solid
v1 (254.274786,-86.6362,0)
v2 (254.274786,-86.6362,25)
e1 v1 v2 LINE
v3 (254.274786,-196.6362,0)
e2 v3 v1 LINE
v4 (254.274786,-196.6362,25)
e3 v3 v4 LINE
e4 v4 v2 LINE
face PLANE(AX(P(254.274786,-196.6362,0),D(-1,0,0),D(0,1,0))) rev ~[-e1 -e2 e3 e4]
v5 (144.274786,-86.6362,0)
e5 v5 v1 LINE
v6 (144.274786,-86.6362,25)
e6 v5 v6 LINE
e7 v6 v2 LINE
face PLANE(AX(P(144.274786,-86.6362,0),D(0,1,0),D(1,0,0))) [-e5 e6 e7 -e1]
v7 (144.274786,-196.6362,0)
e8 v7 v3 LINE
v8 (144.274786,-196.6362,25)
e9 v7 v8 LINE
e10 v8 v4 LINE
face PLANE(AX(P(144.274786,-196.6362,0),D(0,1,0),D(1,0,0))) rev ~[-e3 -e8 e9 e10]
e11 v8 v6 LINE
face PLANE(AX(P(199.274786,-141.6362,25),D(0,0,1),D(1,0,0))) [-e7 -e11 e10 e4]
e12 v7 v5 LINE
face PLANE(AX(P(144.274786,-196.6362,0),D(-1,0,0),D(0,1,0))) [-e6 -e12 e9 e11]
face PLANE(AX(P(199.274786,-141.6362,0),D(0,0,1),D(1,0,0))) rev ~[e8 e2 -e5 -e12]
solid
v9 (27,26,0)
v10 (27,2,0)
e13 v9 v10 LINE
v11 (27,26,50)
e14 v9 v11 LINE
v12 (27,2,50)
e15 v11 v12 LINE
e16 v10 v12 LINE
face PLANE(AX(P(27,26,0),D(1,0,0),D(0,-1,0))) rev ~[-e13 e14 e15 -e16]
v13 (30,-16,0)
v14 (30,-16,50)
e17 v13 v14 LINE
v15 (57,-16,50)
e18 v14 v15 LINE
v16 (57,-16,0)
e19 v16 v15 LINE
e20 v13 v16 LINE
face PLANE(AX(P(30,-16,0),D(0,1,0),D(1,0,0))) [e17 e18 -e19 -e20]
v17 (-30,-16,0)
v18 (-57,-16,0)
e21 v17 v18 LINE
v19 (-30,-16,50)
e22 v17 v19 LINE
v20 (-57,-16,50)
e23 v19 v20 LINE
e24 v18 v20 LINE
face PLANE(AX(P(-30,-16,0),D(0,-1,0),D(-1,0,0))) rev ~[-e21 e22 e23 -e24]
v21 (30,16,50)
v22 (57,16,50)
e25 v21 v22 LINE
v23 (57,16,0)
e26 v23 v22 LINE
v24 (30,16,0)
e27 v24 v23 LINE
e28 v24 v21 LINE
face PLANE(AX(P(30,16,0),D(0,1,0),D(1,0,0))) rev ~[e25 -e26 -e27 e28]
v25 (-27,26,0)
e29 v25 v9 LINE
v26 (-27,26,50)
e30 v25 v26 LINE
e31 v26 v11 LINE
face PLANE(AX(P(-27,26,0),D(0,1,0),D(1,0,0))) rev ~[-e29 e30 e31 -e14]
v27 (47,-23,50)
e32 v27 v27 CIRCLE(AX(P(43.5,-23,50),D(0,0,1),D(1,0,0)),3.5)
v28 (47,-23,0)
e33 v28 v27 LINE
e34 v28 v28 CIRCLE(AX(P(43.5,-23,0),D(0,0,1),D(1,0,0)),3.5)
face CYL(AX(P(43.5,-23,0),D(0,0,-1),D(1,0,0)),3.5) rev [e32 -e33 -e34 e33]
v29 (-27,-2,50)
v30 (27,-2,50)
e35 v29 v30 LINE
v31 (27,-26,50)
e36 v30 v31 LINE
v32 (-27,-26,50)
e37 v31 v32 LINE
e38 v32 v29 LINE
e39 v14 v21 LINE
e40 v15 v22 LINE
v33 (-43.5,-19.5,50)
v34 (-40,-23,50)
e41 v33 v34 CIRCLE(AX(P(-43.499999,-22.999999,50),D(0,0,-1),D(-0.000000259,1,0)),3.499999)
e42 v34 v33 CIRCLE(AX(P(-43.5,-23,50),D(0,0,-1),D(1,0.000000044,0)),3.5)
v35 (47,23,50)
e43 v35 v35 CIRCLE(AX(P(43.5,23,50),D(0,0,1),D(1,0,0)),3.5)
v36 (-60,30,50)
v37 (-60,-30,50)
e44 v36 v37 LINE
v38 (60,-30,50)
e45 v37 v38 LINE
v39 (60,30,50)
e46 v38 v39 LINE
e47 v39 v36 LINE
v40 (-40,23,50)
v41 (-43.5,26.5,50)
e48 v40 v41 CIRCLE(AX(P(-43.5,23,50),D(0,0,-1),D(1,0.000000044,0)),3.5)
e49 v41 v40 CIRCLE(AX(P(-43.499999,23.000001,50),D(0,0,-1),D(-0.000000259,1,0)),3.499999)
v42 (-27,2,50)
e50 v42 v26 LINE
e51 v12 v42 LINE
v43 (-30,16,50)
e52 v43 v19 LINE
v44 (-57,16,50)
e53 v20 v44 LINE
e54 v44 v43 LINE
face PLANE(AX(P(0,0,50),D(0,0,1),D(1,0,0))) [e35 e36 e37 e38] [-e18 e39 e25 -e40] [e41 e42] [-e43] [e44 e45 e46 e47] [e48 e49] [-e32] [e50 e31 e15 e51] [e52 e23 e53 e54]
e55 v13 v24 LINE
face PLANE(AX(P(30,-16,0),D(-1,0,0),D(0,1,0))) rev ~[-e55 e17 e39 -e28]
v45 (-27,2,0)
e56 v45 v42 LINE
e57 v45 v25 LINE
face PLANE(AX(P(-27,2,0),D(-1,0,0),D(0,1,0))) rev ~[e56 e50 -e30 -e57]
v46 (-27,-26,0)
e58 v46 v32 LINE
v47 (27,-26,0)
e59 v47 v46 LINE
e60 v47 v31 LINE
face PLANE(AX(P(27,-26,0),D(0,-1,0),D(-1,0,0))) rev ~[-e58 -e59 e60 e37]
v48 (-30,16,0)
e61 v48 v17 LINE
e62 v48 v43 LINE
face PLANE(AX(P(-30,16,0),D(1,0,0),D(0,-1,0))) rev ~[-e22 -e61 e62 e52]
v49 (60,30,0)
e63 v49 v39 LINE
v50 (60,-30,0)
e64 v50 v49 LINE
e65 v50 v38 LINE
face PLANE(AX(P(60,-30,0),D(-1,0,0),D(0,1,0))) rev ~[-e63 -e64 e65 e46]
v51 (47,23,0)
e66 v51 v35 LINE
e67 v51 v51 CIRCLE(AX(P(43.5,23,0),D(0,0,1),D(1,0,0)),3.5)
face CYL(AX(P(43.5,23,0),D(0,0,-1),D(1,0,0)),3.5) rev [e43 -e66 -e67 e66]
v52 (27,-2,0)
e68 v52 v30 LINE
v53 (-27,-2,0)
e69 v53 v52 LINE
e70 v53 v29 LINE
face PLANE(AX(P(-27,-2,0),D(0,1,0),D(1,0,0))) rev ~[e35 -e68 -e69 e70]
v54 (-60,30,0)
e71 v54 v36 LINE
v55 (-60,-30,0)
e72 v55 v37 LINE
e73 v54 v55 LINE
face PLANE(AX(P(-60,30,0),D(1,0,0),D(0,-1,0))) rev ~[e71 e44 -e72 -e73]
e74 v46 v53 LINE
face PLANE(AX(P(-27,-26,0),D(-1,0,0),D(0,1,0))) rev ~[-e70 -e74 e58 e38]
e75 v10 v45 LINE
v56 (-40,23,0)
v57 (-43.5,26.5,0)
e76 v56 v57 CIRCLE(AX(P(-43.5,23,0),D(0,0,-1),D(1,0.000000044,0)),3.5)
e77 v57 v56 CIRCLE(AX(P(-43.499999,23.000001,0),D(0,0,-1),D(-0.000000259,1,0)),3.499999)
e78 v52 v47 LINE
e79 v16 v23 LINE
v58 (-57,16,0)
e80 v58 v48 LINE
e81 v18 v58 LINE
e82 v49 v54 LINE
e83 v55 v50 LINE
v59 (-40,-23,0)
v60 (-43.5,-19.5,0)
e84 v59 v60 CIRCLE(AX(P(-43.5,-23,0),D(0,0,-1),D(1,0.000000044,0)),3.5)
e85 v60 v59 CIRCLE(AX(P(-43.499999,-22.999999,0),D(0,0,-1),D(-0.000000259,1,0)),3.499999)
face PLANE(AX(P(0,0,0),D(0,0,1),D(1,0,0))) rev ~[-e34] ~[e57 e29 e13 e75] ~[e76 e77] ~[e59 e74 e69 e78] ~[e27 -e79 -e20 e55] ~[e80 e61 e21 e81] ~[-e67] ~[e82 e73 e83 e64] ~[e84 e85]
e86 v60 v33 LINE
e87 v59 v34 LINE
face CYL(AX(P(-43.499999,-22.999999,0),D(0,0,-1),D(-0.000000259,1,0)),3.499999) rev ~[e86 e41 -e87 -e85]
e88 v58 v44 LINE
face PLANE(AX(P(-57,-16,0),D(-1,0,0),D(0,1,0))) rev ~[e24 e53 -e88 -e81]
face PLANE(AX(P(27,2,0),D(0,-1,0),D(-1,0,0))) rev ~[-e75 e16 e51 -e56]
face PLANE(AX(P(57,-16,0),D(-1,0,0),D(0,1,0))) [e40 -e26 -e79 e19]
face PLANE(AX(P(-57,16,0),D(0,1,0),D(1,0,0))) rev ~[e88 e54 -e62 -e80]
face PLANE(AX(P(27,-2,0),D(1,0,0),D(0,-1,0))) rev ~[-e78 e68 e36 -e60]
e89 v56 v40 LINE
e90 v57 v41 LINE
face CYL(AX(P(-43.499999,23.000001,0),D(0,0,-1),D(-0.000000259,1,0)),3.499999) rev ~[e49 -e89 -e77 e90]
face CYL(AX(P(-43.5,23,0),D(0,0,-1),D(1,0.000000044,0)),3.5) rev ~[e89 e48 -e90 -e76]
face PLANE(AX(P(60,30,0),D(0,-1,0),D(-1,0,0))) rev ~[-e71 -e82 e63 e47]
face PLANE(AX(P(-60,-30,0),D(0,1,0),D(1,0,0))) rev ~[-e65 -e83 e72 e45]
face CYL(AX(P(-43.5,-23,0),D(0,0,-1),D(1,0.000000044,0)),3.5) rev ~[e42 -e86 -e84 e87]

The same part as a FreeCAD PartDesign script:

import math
import FreeCAD as App
import Part
import Sketcher

V = App.Vector

doc = App.newDocument("Part")
body = doc.addObject("PartDesign::Body", "Body")

sketch1 = body.newObject("Sketcher::SketchObject", "Sketch")
sketch1.AttachmentSupport = (doc.getObject("XY_Plane"), [""])
sketch1.MapMode = "FlatFace"
sketch1.addGeometry(Part.LineSegment(V(60, -30, 0), V(60, 30, 0)), False)
sketch1.addGeometry(Part.LineSegment(V(60, 30, 0), V(-60, 30, 0)), False)
sketch1.addGeometry(Part.LineSegment(V(-60, 30, 0), V(-60, -30, 0)), False)
sketch1.addGeometry(Part.LineSegment(V(-60, -30, 0), V(60, -30, 0)), False)
sketch1.addGeometry(Part.ArcOfCircle(Part.Circle(V(-43.5, -23, 0), V(0, 0, 1), 3.5), math.radians(90), math.radians(360)), False)
sketch1.addGeometry(Part.ArcOfCircle(Part.Circle(V(-43.5, -23, 0), V(0, 0, 1), 3.5), math.radians(0), math.radians(90)), False)
sketch1.addGeometry(Part.LineSegment(V(27, -2, 0), V(27, -26, 0)), False)
sketch1.addGeometry(Part.LineSegment(V(27, -26, 0), V(-27, -26, 0)), False)
sketch1.addGeometry(Part.LineSegment(V(-27, -26, 0), V(-27, -2, 0)), False)
sketch1.addGeometry(Part.LineSegment(V(-27, -2, 0), V(27, -2, 0)), False)
sketch1.addGeometry(Part.Circle(V(43.5, -23, 0), V(0, 0, 1), 3.5), False)
sketch1.addGeometry(Part.LineSegment(V(-30, 16, 0), V(-30, -16, 0)), False)
sketch1.addGeometry(Part.LineSegment(V(-30, -16, 0), V(-57, -16, 0)), False)
sketch1.addGeometry(Part.LineSegment(V(-57, -16, 0), V(-57, 16, 0)), False)
sketch1.addGeometry(Part.LineSegment(V(-57, 16, 0), V(-30, 16, 0)), False)
sketch1.addGeometry(Part.ArcOfCircle(Part.Circle(V(-43.5, 23, 0), V(0, 0, 1), 3.5), math.radians(0), math.radians(90)), False)
sketch1.addGeometry(Part.ArcOfCircle(Part.Circle(V(-43.5, 23, 0), V(0, 0, 1), 3.5), math.radians(90), math.radians(360)), False)
sketch1.addGeometry(Part.LineSegment(V(57, -16, 0), V(30, -16, 0)), False)
sketch1.addGeometry(Part.LineSegment(V(30, -16, 0), V(30, 16, 0)), False)
sketch1.addGeometry(Part.LineSegment(V(30, 16, 0), V(57, 16, 0)), False)
sketch1.addGeometry(Part.LineSegment(V(57, 16, 0), V(57, -16, 0)), False)
sketch1.addGeometry(Part.LineSegment(V(-27, 26, 0), V(27, 26, 0)), False)
sketch1.addGeometry(Part.LineSegment(V(27, 26, 0), V(27, 2, 0)), False)
sketch1.addGeometry(Part.LineSegment(V(27, 2, 0), V(-27, 2, 0)), False)
sketch1.addGeometry(Part.LineSegment(V(-27, 2, 0), V(-27, 26, 0)), False)
sketch1.addGeometry(Part.Circle(V(43.5, 23, 0), V(0, 0, 1), 3.5), False)
sketch1.addConstraint(Sketcher.Constraint("Coincident", 0, 2, 1, 1))
sketch1.addConstraint(Sketcher.Constraint("Coincident", 1, 2, 2, 1))
sketch1.addConstraint(Sketcher.Constraint("Coincident", 2, 2, 3, 1))
sketch1.addConstraint(Sketcher.Constraint("Coincident", 3, 2, 0, 1))
sketch1.addConstraint(Sketcher.Constraint("Tangent", 4, 1, 5, 2))
sketch1.addConstraint(Sketcher.Constraint("Coincident", 5, 1, 4, 2))
sketch1.addConstraint(Sketcher.Constraint("Coincident", 6, 2, 7, 1))
sketch1.addConstraint(Sketcher.Constraint("Coincident", 7, 2, 8, 1))
sketch1.addConstraint(Sketcher.Constraint("Coincident", 8, 2, 9, 1))
sketch1.addConstraint(Sketcher.Constraint("Coincident", 9, 2, 6, 1))
sketch1.addConstraint(Sketcher.Constraint("Coincident", 11, 2, 12, 1))
sketch1.addConstraint(Sketcher.Constraint("Coincident", 12, 2, 13, 1))
sketch1.addConstraint(Sketcher.Constraint("Coincident", 13, 2, 14, 1))
sketch1.addConstraint(Sketcher.Constraint("Coincident", 14, 2, 11, 1))
sketch1.addConstraint(Sketcher.Constraint("Tangent", 15, 1, 16, 2))
sketch1.addConstraint(Sketcher.Constraint("Coincident", 16, 1, 15, 2))
sketch1.addConstraint(Sketcher.Constraint("Coincident", 17, 2, 18, 1))
sketch1.addConstraint(Sketcher.Constraint("Coincident", 18, 2, 19, 1))
sketch1.addConstraint(Sketcher.Constraint("Coincident", 19, 2, 20, 1))
sketch1.addConstraint(Sketcher.Constraint("Coincident", 20, 2, 17, 1))
sketch1.addConstraint(Sketcher.Constraint("Coincident", 21, 2, 22, 1))
sketch1.addConstraint(Sketcher.Constraint("Coincident", 22, 2, 23, 1))
sketch1.addConstraint(Sketcher.Constraint("Coincident", 23, 2, 24, 1))
sketch1.addConstraint(Sketcher.Constraint("Coincident", 24, 2, 21, 1))
sketch1.addConstraint(Sketcher.Constraint("Vertical", 0))
sketch1.addConstraint(Sketcher.Constraint("Horizontal", 1))
sketch1.addConstraint(Sketcher.Constraint("Vertical", 2))
sketch1.addConstraint(Sketcher.Constraint("Horizontal", 3))
sketch1.addConstraint(Sketcher.Constraint("Vertical", 6))
sketch1.addConstraint(Sketcher.Constraint("Horizontal", 7))
sketch1.addConstraint(Sketcher.Constraint("Vertical", 8))
sketch1.addConstraint(Sketcher.Constraint("Horizontal", 9))
sketch1.addConstraint(Sketcher.Constraint("Vertical", 11))
sketch1.addConstraint(Sketcher.Constraint("Horizontal", 12))
sketch1.addConstraint(Sketcher.Constraint("Vertical", 13))
sketch1.addConstraint(Sketcher.Constraint("Horizontal", 14))
sketch1.addConstraint(Sketcher.Constraint("Horizontal", 17))
sketch1.addConstraint(Sketcher.Constraint("Vertical", 18))
sketch1.addConstraint(Sketcher.Constraint("Horizontal", 19))
sketch1.addConstraint(Sketcher.Constraint("Vertical", 20))
sketch1.addConstraint(Sketcher.Constraint("Horizontal", 21))
sketch1.addConstraint(Sketcher.Constraint("Vertical", 22))
sketch1.addConstraint(Sketcher.Constraint("Horizontal", 23))
sketch1.addConstraint(Sketcher.Constraint("Vertical", 24))
sketch1.addConstraint(Sketcher.Constraint("Equal", 5, 10))
sketch1.addConstraint(Sketcher.Constraint("Equal", 10, 15))
sketch1.addConstraint(Sketcher.Constraint("Equal", 16, 25))
sketch1.addConstraint(Sketcher.Constraint("Symmetric", 10, 3, 15, 3, -1, 1))
sketch1.addConstraint(Sketcher.Constraint("Symmetric", 4, 3, 25, 3, -1, 1))
sketch1.addConstraint(Sketcher.Constraint("Symmetric", 0, 2, 2, 2, -1, 1))
sketch1.addConstraint(Sketcher.Constraint("Symmetric", 14, 2, 17, 2, -1, 1))
sketch1.addConstraint(Sketcher.Constraint("Symmetric", 12, 2, 19, 2, -1, 1))
sketch1.addConstraint(Sketcher.Constraint("Symmetric", 7, 2, 21, 2, -1, 1))
sketch1.addConstraint(Sketcher.Constraint("Symmetric", 9, 2, 23, 2, -1, 1))
sketch1.addConstraint(Sketcher.Constraint("Symmetric", 4, 3, 10, 3, -2))
sketch1.addConstraint(Sketcher.Constraint("Horizontal", 10, 3, 5, 1))
sketch1.addConstraint(Sketcher.Constraint("Horizontal", 25, 3, 15, 1))
sketch1.addConstraint(Sketcher.Constraint("Horizontal", 12, 2, 17, 2))
sketch1.addConstraint(Sketcher.Constraint("Vertical", 16, 3, 4, 1))
sketch1.addConstraint(Sketcher.Constraint("Vertical", 4, 1, 16, 1))
sketch1.addConstraint(Sketcher.Constraint("Vertical", 9, 2, 21, 2))
sketch1.addConstraint(Sketcher.Constraint("Diameter", 10, 7.0))
sketch1.addConstraint(Sketcher.Constraint("DistanceX", 1, 2, 1, 1, 120.0))
sketch1.addConstraint(Sketcher.Constraint("DistanceX", 7, 2, 7, 1, 54.0))
sketch1.addConstraint(Sketcher.Constraint("DistanceX", 12, 2, 12, 1, 27.0))
sketch1.addConstraint(Sketcher.Constraint("DistanceY", 0, 1, 0, 2, 60.0))
sketch1.addConstraint(Sketcher.Constraint("DistanceY", 6, 2, 6, 1, 24.0))
sketch1.addConstraint(Sketcher.Constraint("DistanceY", 11, 2, 11, 1, 32.0))
sketch1.addConstraint(Sketcher.Constraint("DistanceY", 4, 3, -1, 1, 23.0))
sketch1.addConstraint(Sketcher.Constraint("DistanceX", 5, 1, -1, 1, 40.0))
sketch1.addConstraint(Sketcher.Constraint("DistanceY", 6, 2, -1, 1, 26.0))
sketch1.addConstraint(Sketcher.Constraint("DistanceX", 11, 2, -1, 1, 30.0))
pad1 = body.newObject("PartDesign::Pad", "Pad")
pad1.Profile = sketch1
pad1.Length = 50
body2 = doc.addObject("PartDesign::Body", "Body001")

sketch2 = body2.newObject("Sketcher::SketchObject", "Sketch001")
sketch2.AttachmentSupport = (doc.getObject("XY_Plane001"), [""])
sketch2.MapMode = "FlatFace"
sketch2.addGeometry(Part.LineSegment(V(144, -87, 0), V(144, -197, 0)), False)
sketch2.addGeometry(Part.LineSegment(V(144, -197, 0), V(254, -197, 0)), False)
sketch2.addGeometry(Part.LineSegment(V(254, -197, 0), V(254, -87, 0)), False)
sketch2.addGeometry(Part.LineSegment(V(254, -87, 0), V(144, -87, 0)), False)
sketch2.addConstraint(Sketcher.Constraint("Coincident", 0, 2, 1, 1))
sketch2.addConstraint(Sketcher.Constraint("Coincident", 1, 2, 2, 1))
sketch2.addConstraint(Sketcher.Constraint("Coincident", 2, 2, 3, 1))
sketch2.addConstraint(Sketcher.Constraint("Coincident", 3, 2, 0, 1))
sketch2.addConstraint(Sketcher.Constraint("Vertical", 0))
sketch2.addConstraint(Sketcher.Constraint("Horizontal", 1))
sketch2.addConstraint(Sketcher.Constraint("Vertical", 2))
sketch2.addConstraint(Sketcher.Constraint("Horizontal", 3))
sketch2.addConstraint(Sketcher.Constraint("Equal", 3, 0))
sketch2.addConstraint(Sketcher.Constraint("DistanceX", 1, 1, 1, 2, 110.0))
sketch2.addConstraint(Sketcher.Constraint("DistanceY", 0, 2, -1, 1, 196.6362))
sketch2.addConstraint(Sketcher.Constraint("DistanceX", -1, 1, 0, 2, 144.274786))
pad2 = body2.newObject("PartDesign::Pad", "Pad001")
pad2.Profile = sketch2
pad2.Length = 25

doc.recompute()
